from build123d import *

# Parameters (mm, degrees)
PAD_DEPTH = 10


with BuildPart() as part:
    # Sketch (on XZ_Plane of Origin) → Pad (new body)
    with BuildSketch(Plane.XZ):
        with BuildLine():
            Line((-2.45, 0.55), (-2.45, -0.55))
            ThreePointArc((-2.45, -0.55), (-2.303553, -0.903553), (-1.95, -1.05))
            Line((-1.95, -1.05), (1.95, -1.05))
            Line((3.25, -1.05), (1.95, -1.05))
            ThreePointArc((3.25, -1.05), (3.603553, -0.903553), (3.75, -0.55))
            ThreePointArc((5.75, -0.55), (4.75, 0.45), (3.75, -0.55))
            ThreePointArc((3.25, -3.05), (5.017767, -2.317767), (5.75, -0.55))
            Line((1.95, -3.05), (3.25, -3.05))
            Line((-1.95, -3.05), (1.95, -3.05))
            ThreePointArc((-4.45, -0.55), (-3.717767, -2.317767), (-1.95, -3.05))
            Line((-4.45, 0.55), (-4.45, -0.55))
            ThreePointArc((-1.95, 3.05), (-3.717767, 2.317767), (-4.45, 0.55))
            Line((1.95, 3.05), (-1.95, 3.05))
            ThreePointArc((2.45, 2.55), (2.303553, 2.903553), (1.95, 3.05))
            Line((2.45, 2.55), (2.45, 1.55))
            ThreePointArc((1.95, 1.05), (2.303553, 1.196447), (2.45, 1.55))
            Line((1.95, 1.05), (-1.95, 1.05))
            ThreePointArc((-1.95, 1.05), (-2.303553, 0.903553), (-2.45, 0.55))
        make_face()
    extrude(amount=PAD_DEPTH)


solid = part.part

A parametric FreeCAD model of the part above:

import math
import FreeCAD as App
import Part
import Sketcher

V = App.Vector
Q = App.Units.Quantity

doc = App.newDocument("Part")
body = doc.addObject("PartDesign::Body", "Body")

# Sketch on XZ plane
sketch1 = body.newObject("Sketcher::SketchObject", "Sketch")
sketch1.AttachmentSupport = (doc.getObject("XZ_Plane"), [""])
sketch1.MapMode = "FlatFace"
sketch1.addGeometry(Part.LineSegment(V(-2.5, -0.6, 0), V(-2.5, 0.6, 0)), False)
sketch1.addGeometry(Part.ArcOfCircle(Part.Circle(V(-1.9, 0.5, 0), V(0, 0, 1), 0.5), math.radians(90), math.radians(180)), False)
sketch1.addGeometry(Part.LineSegment(V(-1.9, 1.1, 0), V(1.9, 1.1, 0)), False)
sketch1.addGeometry(Part.ArcOfCircle(Part.Circle(V(1.9, 1.6, 0), V(0, 0, 1), 0.5), math.radians(-90), math.radians(0)), False)
sketch1.addGeometry(Part.LineSegment(V(2.5, 1.6, 0), V(2.5, 2.5, 0)), False)
sketch1.addGeometry(Part.ArcOfCircle(Part.Circle(V(1.9, 2.5, 0), V(0, 0, 1), 0.5), math.radians(0), math.radians(90)), False)
sketch1.addGeometry(Part.LineSegment(V(1.9, 3, 0), V(-1.9, 3, 0)), False)
sketch1.addGeometry(Part.ArcOfCircle(Part.Circle(V(-2, 0.6, 0), V(0, 0, 1), 2.5), math.radians(90), math.radians(180)), False)
sketch1.addGeometry(Part.LineSegment(V(-4.5, 0.6, 0), V(-4.5, -0.6, 0)), False)
sketch1.addGeometry(Part.ArcOfCircle(Part.Circle(V(-2, -0.6, 0), V(0, 0, 1), 2.5), math.radians(180), math.radians(270)), False)
sketch1.addGeometry(Part.LineSegment(V(-1.9, -3, 0), V(3.2, -3, 0)), False)
sketch1.addGeometry(Part.ArcOfCircle(Part.Circle(V(3.3, -0.6, 0), V(0, 0, 1), 2.5), math.radians(-90), math.radians(0)), False)
sketch1.addGeometry(Part.ArcOfCircle(Part.Circle(V(4.8, -0.6, 0), V(0, 0, 1), 1), math.radians(0), math.radians(180)), False)
sketch1.addGeometry(Part.ArcOfCircle(Part.Circle(V(3.2, -0.5, 0), V(0, 0, 1), 0.5), math.radians(-90), math.radians(0)), False)
sketch1.addGeometry(Part.LineSegment(V(3.2, -1.1, 0), V(-1.9, -1.1, 0)), False)
sketch1.addGeometry(Part.ArcOfCircle(Part.Circle(V(-1.9, -0.5, 0), V(0, 0, 1), 0.5), math.radians(-180), math.radians(-90)), False)
sketch1.addConstraint(Sketcher.Constraint("Coincident", 0, 2, 1, 2))
sketch1.addConstraint(Sketcher.Constraint("Coincident", 1, 1, 2, 1))
sketch1.addConstraint(Sketcher.Constraint("Coincident", 2, 2, 3, 1))
sketch1.addConstraint(Sketcher.Constraint("Coincident", 3, 2, 4, 1))
sketch1.addConstraint(Sketcher.Constraint("Coincident", 4, 2, 5, 1))
sketch1.addConstraint(Sketcher.Constraint("Coincident", 5, 2, 6, 1))
sketch1.addConstraint(Sketcher.Constraint("Tangent", 6, 2, 7, 1))
sketch1.addConstraint(Sketcher.Constraint("Tangent", 7, 2, 8, 1))
sketch1.addConstraint(Sketcher.Constraint("Tangent", 8, 2, 9, 1))
sketch1.addConstraint(Sketcher.Constraint("Tangent", 9, 2, 10, 1))
sketch1.addConstraint(Sketcher.Constraint("Tangent", 10, 2, 11, 1))
sketch1.addConstraint(Sketcher.Constraint("Tangent", 11, 2, 12, 1))
sketch1.addConstraint(Sketcher.Constraint("Coincident", 12, 2, 13, 2))
sketch1.addConstraint(Sketcher.Constraint("Coincident", 13, 1, 14, 1))
sketch1.addConstraint(Sketcher.Constraint("Coincident", 14, 2, 15, 2))
sketch1.addConstraint(Sketcher.Constraint("Coincident", 15, 1, 0, 1))
sketch1.addConstraint(Sketcher.Constraint("Vertical", 0))
sketch1.addConstraint(Sketcher.Constraint("Horizontal", 2))
sketch1.addConstraint(Sketcher.Constraint("Vertical", 4))
sketch1.addConstraint(Sketcher.Constraint("Horizontal", 6))
sketch1.addConstraint(Sketcher.Constraint("Vertical", 8))
sketch1.addConstraint(Sketcher.Constraint("Horizontal", 10))
sketch1.addConstraint(Sketcher.Constraint("Horizontal", 14))
sketch1.addConstraint(Sketcher.Constraint("Coincident", 7, 3, 1, 3))
sketch1.addConstraint(Sketcher.Constraint("Coincident", 13, 3, 11, 3))
sketch1.addConstraint(Sketcher.Constraint("Coincident", 15, 3, 9, 3))
sketch1.addConstraint(Sketcher.Constraint("Equal", 1, 3))
sketch1.addConstraint(Sketcher.Constraint("Equal", 3, 5))
sketch1.addConstraint(Sketcher.Constraint("Equal", 7, 9))
sketch1.addConstraint(Sketcher.Constraint("Equal", 9, 11))
sketch1.addConstraint(Sketcher.Constraint("Symmetric", 5, 2, 9, 2, -1, 1))
sketch1.addConstraint(Sketcher.Constraint("Horizontal", 11, 3, 12, 3))
sketch1.addConstraint(Sketcher.Constraint("Horizontal", 7, 3, 0, 2))
sketch1.addConstraint(Sketcher.Constraint("Horizontal", 5, 3, 4, 2))
sketch1.addConstraint(Sketcher.Constraint("Horizontal", 11, 2, 12, 2))
sketch1.addConstraint(Sketcher.Constraint("Horizontal", 12, 2, 15, 1))
sketch1.addConstraint(Sketcher.Constraint("Vertical", 15, 3, 1, 1))
sketch1.addConstraint(Sketcher.Constraint("Vertical", 5, 3, 2, 2))
sketch1.addConstraint(Sketcher.Constraint("Vertical", 2, 2, 5, 2))
sketch1.addConstraint(Sketcher.Constraint("Vertical", 10, 2, 13, 1))
sketch1.addConstraint(Sketcher.Constraint("Vertical", 9, 2, 14, 2))
sketch1.addConstraint(Sketcher.Constraint("Radius", 12, Q("1 mm")))
sketch1.addConstraint(Sketcher.Constraint("Radius", 1, Q("0.500001 mm")))
sketch1.addConstraint(Sketcher.Constraint("DistanceY", 4, 1, 4, 2, Q("1 mm")))
sketch1.addConstraint(Sketcher.Constraint("DistanceX", 2, 1, 2, 2, Q("3.9 mm")))
sketch1.addConstraint(Sketcher.Constraint("DistanceX", 10, 1, 10, 2, Q("5.2 mm")))
sketch1.addConstraint(Sketcher.Constraint("DistanceY", 0, 1, 0, 2, Q("1.1 mm")))
pad1 = body.newObject("PartDesign::Pad", "Pad")
pad1.Profile = sketch1
pad1.Length = 10

doc.recompute()
